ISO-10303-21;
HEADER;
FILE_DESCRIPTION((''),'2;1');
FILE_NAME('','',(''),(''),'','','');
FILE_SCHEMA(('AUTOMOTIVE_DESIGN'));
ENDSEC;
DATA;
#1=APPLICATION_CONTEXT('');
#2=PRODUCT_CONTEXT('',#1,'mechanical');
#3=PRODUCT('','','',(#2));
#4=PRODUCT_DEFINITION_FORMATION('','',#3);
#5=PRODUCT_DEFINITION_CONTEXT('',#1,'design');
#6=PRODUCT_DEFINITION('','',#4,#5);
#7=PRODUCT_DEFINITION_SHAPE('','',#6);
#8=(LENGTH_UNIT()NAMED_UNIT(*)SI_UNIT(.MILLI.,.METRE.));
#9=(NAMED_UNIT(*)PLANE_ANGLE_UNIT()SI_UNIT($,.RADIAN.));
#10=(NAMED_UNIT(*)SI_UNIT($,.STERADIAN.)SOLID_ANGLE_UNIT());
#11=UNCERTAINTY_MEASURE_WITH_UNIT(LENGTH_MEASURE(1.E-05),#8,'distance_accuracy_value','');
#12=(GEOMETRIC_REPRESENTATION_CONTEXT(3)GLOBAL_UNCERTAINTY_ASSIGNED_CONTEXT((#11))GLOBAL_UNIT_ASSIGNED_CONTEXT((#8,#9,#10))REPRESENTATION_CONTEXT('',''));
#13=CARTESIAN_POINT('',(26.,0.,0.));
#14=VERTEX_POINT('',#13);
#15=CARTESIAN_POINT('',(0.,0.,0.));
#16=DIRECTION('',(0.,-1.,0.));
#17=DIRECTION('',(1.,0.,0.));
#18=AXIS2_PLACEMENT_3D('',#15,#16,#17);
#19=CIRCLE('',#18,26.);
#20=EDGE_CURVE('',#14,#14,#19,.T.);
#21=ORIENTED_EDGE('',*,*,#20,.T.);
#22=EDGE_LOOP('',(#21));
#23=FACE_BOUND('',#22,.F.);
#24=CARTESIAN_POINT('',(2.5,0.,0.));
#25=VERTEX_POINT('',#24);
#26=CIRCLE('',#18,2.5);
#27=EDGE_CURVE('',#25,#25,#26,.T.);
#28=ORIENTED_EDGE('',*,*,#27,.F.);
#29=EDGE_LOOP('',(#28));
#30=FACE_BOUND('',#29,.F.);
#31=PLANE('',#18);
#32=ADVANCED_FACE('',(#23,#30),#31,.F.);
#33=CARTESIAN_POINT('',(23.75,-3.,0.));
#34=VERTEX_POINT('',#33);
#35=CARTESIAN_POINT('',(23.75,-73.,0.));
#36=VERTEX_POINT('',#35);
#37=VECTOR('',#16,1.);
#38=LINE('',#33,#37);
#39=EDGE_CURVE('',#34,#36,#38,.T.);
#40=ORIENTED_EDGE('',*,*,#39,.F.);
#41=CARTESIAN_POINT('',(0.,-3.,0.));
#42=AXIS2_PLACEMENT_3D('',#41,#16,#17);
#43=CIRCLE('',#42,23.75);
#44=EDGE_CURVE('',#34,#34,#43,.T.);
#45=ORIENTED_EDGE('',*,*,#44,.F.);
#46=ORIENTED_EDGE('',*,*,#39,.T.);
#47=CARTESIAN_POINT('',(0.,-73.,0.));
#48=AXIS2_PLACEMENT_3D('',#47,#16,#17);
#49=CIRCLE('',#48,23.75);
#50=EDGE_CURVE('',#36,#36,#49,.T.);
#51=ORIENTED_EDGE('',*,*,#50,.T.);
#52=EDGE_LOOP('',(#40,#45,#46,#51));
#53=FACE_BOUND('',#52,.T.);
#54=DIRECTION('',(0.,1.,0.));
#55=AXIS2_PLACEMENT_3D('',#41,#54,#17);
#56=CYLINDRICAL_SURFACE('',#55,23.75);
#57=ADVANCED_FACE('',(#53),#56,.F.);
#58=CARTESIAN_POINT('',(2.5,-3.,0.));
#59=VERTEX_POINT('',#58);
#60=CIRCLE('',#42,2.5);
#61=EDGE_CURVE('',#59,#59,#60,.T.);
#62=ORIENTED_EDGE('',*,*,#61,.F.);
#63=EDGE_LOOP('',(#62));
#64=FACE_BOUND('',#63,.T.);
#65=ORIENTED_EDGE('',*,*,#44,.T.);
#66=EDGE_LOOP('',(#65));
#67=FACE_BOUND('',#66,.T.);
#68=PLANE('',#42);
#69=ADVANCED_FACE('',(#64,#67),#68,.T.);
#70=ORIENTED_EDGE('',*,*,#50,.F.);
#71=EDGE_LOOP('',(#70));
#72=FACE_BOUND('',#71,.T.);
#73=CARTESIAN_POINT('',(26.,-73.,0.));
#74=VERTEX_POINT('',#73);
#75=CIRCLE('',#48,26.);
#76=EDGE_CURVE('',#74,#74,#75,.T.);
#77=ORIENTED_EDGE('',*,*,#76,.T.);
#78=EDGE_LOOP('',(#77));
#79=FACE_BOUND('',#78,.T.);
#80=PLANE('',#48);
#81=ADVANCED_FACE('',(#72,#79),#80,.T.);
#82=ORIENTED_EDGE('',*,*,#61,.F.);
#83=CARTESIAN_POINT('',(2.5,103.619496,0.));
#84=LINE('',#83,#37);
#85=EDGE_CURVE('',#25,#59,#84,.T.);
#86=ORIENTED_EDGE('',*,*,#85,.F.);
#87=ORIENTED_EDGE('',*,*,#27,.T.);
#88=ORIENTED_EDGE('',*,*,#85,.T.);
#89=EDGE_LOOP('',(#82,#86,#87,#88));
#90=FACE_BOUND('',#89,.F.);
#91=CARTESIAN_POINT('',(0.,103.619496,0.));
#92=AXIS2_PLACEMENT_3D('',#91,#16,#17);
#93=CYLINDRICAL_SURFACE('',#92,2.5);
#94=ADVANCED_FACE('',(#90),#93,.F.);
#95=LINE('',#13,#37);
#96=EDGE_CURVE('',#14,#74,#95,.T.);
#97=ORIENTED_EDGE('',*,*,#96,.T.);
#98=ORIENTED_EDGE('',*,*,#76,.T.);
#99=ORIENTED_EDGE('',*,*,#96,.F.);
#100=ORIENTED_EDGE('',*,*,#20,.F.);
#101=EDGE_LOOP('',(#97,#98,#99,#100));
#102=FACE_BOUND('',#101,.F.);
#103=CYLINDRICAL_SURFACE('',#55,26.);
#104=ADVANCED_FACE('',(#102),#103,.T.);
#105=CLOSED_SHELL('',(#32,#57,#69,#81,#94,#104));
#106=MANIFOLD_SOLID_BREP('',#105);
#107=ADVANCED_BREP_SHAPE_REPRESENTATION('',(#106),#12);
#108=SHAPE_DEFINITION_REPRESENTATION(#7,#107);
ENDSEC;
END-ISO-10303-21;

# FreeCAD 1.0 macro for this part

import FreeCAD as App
import Part
import Sketcher
from FreeCAD import Vector

doc = App.newDocument("Part")
body = doc.addObject("PartDesign::Body", "Body")

# Sketch on XZ plane
sketch1 = body.newObject("Sketcher::SketchObject", "Sketch")
sketch1.AttachmentSupport = (doc.getObject("XZ_Plane"), [""])
sketch1.MapMode = "FlatFace"
sketch1.addGeometry(Part.Circle(Vector(0, 0, 0), Vector(0, 0, 1), 26), False)
sketch1.addConstraint([
    Sketcher.Constraint("Coincident", 0, 3, -1, 1),
    Sketcher.Constraint("Diameter", 0, 52.0),
])
pad1 = body.newObject("PartDesign::Pad", "Pad")
pad1.Profile = sketch1
pad1.Length = 3

# Sketch on XZ plane
sketch2 = body.newObject("Sketcher::SketchObject", "Sketch001")
sketch2.AttachmentSupport = (doc.getObject("XZ_Plane"), [""])
sketch2.MapMode = "FlatFace"
sketch2.AttachmentOffset = App.Placement(Vector(0, 0, 3), App.Rotation())
sketch2.addGeometry([
    Part.Circle(Vector(0, 0, 0), Vector(0, 0, 1), 26),
    Part.Circle(Vector(0, 0, 0), Vector(0, 0, 1), 24),
], False)
sketch2.addConstraint([
    Sketcher.Constraint("Coincident", 0, 3, -1, 1),
    Sketcher.Constraint("Coincident", 1, 3, -1, 1),
    Sketcher.Constraint("Diameter", 0, 52.0),
    Sketcher.Constraint("Diameter", 1, 47.5),
])
pad2 = body.newObject("PartDesign::Pad", "Pad001")
pad2.Profile = sketch2
pad2.Length = 70

# Sketch on XZ plane
sketch3 = body.newObject("Sketcher::SketchObject", "Sketch002")
sketch3.AttachmentSupport = (doc.getObject("XZ_Plane"), [""])
sketch3.MapMode = "FlatFace"
sketch3.addGeometry(Part.Circle(Vector(0, 0, 0), Vector(0, 0, 1), 2.5), False)
sketch3.addConstraint([
    Sketcher.Constraint("Coincident", 0, 3, -1, 1),
    Sketcher.Constraint("Diameter", 0, 5.0),
])
doc.recompute()
hole = body.newObject("PartDesign::Hole", "Hole")
hole.Profile = sketch3
hole.ThreadType = "None"
hole.Diameter = 5
hole.DepthType = "ThroughAll"
hole.Reversed = True

doc.recompute()
